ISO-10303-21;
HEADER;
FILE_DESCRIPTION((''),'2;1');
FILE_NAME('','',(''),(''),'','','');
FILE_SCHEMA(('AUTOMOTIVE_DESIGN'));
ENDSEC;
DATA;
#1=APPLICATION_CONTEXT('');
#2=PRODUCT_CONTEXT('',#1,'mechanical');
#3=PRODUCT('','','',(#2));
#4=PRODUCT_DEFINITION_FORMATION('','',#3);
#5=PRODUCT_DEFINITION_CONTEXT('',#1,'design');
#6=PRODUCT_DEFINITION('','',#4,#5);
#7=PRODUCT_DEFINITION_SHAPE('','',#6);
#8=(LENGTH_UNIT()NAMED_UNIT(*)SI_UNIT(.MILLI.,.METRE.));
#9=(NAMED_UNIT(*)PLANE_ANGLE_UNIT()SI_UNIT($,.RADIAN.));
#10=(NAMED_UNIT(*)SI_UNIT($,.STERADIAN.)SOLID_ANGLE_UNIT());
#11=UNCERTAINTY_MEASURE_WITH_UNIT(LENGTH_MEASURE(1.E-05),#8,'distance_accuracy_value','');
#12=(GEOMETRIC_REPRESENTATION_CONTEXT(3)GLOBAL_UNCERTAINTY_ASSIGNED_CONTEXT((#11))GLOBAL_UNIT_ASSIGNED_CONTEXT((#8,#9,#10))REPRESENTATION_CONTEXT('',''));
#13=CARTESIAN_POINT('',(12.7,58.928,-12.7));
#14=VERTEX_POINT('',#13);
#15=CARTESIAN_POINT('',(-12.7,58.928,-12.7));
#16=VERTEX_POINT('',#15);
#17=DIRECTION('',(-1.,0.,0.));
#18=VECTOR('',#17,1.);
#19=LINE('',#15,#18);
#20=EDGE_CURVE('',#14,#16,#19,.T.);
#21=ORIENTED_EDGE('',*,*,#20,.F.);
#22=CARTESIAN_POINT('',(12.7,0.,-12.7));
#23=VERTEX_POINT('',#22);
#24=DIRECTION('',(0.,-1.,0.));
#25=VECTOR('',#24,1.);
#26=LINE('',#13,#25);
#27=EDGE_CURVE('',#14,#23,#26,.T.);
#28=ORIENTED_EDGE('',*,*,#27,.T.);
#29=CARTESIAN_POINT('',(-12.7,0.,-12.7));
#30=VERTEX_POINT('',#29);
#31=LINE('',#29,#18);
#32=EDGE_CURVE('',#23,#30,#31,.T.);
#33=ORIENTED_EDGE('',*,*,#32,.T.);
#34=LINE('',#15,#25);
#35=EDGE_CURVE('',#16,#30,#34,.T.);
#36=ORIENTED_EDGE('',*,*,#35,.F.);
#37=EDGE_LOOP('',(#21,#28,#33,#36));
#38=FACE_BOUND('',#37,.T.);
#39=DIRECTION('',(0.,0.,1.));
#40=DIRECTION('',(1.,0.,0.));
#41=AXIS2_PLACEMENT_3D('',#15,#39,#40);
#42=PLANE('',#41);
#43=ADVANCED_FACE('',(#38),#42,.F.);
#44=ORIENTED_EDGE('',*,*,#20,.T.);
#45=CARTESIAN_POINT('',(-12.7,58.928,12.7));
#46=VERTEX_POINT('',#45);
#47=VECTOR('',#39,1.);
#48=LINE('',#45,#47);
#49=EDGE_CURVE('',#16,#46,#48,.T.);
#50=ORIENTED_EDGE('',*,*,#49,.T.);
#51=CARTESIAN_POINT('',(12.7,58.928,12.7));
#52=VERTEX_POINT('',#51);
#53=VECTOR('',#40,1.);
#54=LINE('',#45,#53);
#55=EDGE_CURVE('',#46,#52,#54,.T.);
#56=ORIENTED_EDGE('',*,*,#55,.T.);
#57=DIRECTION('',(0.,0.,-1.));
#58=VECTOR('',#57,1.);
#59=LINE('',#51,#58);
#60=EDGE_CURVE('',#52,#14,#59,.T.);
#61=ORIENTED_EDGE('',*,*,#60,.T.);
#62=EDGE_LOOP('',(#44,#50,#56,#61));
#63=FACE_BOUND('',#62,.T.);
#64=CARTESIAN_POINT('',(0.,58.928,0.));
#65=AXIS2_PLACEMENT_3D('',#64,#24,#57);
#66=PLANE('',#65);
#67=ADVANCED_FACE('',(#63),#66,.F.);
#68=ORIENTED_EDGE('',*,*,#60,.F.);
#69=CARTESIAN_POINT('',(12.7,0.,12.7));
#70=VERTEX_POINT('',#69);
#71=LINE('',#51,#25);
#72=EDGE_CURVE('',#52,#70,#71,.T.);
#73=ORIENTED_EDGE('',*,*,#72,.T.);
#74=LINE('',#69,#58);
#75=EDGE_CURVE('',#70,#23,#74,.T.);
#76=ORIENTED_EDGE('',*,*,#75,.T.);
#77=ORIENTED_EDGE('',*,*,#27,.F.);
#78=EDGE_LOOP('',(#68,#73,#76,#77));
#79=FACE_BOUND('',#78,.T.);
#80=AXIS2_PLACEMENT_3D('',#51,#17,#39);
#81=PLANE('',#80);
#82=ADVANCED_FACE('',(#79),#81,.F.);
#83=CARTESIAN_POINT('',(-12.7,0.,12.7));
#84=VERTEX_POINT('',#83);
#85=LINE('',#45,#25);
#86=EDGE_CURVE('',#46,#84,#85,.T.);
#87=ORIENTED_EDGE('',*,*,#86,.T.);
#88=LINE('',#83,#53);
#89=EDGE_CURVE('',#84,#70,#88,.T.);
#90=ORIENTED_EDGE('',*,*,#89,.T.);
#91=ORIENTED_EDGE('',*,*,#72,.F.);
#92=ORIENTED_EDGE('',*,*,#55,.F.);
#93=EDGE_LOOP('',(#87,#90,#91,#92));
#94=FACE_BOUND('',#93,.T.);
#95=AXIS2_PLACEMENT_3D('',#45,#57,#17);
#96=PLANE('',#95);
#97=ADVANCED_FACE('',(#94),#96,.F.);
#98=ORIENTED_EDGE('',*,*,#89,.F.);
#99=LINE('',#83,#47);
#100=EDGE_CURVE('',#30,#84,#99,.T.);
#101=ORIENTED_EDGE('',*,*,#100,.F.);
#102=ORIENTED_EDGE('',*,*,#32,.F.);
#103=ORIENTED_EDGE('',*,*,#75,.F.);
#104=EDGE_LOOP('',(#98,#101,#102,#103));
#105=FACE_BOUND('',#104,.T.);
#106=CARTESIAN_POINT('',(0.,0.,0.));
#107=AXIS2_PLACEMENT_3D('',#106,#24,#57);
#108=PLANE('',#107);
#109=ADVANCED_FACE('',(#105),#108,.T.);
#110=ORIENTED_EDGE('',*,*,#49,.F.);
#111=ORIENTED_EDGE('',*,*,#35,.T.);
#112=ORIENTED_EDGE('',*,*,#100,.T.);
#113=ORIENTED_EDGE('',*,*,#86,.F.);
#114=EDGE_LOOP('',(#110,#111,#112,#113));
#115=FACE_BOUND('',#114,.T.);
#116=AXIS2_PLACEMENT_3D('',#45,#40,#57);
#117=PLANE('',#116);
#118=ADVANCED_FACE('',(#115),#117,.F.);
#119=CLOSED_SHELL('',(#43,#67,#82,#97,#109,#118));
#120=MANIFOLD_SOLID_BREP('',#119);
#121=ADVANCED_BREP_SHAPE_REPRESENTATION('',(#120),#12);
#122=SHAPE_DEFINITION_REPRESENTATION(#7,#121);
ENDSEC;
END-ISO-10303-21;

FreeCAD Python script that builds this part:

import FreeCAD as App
import Part
import Sketcher

V = App.Vector
Q = App.Units.Quantity

doc = App.newDocument("Part")
params = doc.addObject("Spreadsheet::Sheet", "Params")
for row, (alias, value) in enumerate([
    ("sketch1_width", "1 in"),
    ("pad1_length", "2.32 in"),
], start=1):
    params.set(f"A{row}", alias)
    params.set(f"B{row}", "=" + value)
    params.setAlias(f"B{row}", alias)

body = doc.addObject("PartDesign::Body", "Body")

sketch1 = body.newObject("Sketcher::SketchObject", "Sketch")
sketch1.AttachmentSupport = (doc.getObject("XZ_Plane"), [""])
sketch1.MapMode = "FlatFace"
sketch1.addGeometry([
    Part.LineSegment(V(-13, -13, 0), V(-13, 13, 0)),
    Part.LineSegment(V(-13, 13, 0), V(13, 13, 0)),
    Part.LineSegment(V(13, 13, 0), V(13, -13, 0)),
    Part.LineSegment(V(13, -13, 0), V(-13, -13, 0)),
], False)
sketch1.addConstraint([
    Sketcher.Constraint("Coincident", 0, 2, 1, 1),
    Sketcher.Constraint("Coincident", 1, 2, 2, 1),
    Sketcher.Constraint("Coincident", 2, 2, 3, 1),
    Sketcher.Constraint("Coincident", 3, 2, 0, 1),
    Sketcher.Constraint("Vertical", 0),
    Sketcher.Constraint("Horizontal", 1),
    Sketcher.Constraint("Vertical", 2),
    Sketcher.Constraint("Horizontal", 3),
    Sketcher.Constraint("Symmetric", 0, 2, 2, 2, -1, 1),
    Sketcher.Constraint("Equal", 3, 0),
    Sketcher.Constraint("DistanceX", 1, 1, 1, 2, Q("1 in")),
])
sketch1.setExpression("Constraints[10]", "Params.sketch1_width")
pad1 = body.newObject("PartDesign::Pad", "Pad")
pad1.Profile = sketch1
pad1.setExpression("Length", "Params.pad1_length")
pad1.Reversed = True

doc.recompute()
